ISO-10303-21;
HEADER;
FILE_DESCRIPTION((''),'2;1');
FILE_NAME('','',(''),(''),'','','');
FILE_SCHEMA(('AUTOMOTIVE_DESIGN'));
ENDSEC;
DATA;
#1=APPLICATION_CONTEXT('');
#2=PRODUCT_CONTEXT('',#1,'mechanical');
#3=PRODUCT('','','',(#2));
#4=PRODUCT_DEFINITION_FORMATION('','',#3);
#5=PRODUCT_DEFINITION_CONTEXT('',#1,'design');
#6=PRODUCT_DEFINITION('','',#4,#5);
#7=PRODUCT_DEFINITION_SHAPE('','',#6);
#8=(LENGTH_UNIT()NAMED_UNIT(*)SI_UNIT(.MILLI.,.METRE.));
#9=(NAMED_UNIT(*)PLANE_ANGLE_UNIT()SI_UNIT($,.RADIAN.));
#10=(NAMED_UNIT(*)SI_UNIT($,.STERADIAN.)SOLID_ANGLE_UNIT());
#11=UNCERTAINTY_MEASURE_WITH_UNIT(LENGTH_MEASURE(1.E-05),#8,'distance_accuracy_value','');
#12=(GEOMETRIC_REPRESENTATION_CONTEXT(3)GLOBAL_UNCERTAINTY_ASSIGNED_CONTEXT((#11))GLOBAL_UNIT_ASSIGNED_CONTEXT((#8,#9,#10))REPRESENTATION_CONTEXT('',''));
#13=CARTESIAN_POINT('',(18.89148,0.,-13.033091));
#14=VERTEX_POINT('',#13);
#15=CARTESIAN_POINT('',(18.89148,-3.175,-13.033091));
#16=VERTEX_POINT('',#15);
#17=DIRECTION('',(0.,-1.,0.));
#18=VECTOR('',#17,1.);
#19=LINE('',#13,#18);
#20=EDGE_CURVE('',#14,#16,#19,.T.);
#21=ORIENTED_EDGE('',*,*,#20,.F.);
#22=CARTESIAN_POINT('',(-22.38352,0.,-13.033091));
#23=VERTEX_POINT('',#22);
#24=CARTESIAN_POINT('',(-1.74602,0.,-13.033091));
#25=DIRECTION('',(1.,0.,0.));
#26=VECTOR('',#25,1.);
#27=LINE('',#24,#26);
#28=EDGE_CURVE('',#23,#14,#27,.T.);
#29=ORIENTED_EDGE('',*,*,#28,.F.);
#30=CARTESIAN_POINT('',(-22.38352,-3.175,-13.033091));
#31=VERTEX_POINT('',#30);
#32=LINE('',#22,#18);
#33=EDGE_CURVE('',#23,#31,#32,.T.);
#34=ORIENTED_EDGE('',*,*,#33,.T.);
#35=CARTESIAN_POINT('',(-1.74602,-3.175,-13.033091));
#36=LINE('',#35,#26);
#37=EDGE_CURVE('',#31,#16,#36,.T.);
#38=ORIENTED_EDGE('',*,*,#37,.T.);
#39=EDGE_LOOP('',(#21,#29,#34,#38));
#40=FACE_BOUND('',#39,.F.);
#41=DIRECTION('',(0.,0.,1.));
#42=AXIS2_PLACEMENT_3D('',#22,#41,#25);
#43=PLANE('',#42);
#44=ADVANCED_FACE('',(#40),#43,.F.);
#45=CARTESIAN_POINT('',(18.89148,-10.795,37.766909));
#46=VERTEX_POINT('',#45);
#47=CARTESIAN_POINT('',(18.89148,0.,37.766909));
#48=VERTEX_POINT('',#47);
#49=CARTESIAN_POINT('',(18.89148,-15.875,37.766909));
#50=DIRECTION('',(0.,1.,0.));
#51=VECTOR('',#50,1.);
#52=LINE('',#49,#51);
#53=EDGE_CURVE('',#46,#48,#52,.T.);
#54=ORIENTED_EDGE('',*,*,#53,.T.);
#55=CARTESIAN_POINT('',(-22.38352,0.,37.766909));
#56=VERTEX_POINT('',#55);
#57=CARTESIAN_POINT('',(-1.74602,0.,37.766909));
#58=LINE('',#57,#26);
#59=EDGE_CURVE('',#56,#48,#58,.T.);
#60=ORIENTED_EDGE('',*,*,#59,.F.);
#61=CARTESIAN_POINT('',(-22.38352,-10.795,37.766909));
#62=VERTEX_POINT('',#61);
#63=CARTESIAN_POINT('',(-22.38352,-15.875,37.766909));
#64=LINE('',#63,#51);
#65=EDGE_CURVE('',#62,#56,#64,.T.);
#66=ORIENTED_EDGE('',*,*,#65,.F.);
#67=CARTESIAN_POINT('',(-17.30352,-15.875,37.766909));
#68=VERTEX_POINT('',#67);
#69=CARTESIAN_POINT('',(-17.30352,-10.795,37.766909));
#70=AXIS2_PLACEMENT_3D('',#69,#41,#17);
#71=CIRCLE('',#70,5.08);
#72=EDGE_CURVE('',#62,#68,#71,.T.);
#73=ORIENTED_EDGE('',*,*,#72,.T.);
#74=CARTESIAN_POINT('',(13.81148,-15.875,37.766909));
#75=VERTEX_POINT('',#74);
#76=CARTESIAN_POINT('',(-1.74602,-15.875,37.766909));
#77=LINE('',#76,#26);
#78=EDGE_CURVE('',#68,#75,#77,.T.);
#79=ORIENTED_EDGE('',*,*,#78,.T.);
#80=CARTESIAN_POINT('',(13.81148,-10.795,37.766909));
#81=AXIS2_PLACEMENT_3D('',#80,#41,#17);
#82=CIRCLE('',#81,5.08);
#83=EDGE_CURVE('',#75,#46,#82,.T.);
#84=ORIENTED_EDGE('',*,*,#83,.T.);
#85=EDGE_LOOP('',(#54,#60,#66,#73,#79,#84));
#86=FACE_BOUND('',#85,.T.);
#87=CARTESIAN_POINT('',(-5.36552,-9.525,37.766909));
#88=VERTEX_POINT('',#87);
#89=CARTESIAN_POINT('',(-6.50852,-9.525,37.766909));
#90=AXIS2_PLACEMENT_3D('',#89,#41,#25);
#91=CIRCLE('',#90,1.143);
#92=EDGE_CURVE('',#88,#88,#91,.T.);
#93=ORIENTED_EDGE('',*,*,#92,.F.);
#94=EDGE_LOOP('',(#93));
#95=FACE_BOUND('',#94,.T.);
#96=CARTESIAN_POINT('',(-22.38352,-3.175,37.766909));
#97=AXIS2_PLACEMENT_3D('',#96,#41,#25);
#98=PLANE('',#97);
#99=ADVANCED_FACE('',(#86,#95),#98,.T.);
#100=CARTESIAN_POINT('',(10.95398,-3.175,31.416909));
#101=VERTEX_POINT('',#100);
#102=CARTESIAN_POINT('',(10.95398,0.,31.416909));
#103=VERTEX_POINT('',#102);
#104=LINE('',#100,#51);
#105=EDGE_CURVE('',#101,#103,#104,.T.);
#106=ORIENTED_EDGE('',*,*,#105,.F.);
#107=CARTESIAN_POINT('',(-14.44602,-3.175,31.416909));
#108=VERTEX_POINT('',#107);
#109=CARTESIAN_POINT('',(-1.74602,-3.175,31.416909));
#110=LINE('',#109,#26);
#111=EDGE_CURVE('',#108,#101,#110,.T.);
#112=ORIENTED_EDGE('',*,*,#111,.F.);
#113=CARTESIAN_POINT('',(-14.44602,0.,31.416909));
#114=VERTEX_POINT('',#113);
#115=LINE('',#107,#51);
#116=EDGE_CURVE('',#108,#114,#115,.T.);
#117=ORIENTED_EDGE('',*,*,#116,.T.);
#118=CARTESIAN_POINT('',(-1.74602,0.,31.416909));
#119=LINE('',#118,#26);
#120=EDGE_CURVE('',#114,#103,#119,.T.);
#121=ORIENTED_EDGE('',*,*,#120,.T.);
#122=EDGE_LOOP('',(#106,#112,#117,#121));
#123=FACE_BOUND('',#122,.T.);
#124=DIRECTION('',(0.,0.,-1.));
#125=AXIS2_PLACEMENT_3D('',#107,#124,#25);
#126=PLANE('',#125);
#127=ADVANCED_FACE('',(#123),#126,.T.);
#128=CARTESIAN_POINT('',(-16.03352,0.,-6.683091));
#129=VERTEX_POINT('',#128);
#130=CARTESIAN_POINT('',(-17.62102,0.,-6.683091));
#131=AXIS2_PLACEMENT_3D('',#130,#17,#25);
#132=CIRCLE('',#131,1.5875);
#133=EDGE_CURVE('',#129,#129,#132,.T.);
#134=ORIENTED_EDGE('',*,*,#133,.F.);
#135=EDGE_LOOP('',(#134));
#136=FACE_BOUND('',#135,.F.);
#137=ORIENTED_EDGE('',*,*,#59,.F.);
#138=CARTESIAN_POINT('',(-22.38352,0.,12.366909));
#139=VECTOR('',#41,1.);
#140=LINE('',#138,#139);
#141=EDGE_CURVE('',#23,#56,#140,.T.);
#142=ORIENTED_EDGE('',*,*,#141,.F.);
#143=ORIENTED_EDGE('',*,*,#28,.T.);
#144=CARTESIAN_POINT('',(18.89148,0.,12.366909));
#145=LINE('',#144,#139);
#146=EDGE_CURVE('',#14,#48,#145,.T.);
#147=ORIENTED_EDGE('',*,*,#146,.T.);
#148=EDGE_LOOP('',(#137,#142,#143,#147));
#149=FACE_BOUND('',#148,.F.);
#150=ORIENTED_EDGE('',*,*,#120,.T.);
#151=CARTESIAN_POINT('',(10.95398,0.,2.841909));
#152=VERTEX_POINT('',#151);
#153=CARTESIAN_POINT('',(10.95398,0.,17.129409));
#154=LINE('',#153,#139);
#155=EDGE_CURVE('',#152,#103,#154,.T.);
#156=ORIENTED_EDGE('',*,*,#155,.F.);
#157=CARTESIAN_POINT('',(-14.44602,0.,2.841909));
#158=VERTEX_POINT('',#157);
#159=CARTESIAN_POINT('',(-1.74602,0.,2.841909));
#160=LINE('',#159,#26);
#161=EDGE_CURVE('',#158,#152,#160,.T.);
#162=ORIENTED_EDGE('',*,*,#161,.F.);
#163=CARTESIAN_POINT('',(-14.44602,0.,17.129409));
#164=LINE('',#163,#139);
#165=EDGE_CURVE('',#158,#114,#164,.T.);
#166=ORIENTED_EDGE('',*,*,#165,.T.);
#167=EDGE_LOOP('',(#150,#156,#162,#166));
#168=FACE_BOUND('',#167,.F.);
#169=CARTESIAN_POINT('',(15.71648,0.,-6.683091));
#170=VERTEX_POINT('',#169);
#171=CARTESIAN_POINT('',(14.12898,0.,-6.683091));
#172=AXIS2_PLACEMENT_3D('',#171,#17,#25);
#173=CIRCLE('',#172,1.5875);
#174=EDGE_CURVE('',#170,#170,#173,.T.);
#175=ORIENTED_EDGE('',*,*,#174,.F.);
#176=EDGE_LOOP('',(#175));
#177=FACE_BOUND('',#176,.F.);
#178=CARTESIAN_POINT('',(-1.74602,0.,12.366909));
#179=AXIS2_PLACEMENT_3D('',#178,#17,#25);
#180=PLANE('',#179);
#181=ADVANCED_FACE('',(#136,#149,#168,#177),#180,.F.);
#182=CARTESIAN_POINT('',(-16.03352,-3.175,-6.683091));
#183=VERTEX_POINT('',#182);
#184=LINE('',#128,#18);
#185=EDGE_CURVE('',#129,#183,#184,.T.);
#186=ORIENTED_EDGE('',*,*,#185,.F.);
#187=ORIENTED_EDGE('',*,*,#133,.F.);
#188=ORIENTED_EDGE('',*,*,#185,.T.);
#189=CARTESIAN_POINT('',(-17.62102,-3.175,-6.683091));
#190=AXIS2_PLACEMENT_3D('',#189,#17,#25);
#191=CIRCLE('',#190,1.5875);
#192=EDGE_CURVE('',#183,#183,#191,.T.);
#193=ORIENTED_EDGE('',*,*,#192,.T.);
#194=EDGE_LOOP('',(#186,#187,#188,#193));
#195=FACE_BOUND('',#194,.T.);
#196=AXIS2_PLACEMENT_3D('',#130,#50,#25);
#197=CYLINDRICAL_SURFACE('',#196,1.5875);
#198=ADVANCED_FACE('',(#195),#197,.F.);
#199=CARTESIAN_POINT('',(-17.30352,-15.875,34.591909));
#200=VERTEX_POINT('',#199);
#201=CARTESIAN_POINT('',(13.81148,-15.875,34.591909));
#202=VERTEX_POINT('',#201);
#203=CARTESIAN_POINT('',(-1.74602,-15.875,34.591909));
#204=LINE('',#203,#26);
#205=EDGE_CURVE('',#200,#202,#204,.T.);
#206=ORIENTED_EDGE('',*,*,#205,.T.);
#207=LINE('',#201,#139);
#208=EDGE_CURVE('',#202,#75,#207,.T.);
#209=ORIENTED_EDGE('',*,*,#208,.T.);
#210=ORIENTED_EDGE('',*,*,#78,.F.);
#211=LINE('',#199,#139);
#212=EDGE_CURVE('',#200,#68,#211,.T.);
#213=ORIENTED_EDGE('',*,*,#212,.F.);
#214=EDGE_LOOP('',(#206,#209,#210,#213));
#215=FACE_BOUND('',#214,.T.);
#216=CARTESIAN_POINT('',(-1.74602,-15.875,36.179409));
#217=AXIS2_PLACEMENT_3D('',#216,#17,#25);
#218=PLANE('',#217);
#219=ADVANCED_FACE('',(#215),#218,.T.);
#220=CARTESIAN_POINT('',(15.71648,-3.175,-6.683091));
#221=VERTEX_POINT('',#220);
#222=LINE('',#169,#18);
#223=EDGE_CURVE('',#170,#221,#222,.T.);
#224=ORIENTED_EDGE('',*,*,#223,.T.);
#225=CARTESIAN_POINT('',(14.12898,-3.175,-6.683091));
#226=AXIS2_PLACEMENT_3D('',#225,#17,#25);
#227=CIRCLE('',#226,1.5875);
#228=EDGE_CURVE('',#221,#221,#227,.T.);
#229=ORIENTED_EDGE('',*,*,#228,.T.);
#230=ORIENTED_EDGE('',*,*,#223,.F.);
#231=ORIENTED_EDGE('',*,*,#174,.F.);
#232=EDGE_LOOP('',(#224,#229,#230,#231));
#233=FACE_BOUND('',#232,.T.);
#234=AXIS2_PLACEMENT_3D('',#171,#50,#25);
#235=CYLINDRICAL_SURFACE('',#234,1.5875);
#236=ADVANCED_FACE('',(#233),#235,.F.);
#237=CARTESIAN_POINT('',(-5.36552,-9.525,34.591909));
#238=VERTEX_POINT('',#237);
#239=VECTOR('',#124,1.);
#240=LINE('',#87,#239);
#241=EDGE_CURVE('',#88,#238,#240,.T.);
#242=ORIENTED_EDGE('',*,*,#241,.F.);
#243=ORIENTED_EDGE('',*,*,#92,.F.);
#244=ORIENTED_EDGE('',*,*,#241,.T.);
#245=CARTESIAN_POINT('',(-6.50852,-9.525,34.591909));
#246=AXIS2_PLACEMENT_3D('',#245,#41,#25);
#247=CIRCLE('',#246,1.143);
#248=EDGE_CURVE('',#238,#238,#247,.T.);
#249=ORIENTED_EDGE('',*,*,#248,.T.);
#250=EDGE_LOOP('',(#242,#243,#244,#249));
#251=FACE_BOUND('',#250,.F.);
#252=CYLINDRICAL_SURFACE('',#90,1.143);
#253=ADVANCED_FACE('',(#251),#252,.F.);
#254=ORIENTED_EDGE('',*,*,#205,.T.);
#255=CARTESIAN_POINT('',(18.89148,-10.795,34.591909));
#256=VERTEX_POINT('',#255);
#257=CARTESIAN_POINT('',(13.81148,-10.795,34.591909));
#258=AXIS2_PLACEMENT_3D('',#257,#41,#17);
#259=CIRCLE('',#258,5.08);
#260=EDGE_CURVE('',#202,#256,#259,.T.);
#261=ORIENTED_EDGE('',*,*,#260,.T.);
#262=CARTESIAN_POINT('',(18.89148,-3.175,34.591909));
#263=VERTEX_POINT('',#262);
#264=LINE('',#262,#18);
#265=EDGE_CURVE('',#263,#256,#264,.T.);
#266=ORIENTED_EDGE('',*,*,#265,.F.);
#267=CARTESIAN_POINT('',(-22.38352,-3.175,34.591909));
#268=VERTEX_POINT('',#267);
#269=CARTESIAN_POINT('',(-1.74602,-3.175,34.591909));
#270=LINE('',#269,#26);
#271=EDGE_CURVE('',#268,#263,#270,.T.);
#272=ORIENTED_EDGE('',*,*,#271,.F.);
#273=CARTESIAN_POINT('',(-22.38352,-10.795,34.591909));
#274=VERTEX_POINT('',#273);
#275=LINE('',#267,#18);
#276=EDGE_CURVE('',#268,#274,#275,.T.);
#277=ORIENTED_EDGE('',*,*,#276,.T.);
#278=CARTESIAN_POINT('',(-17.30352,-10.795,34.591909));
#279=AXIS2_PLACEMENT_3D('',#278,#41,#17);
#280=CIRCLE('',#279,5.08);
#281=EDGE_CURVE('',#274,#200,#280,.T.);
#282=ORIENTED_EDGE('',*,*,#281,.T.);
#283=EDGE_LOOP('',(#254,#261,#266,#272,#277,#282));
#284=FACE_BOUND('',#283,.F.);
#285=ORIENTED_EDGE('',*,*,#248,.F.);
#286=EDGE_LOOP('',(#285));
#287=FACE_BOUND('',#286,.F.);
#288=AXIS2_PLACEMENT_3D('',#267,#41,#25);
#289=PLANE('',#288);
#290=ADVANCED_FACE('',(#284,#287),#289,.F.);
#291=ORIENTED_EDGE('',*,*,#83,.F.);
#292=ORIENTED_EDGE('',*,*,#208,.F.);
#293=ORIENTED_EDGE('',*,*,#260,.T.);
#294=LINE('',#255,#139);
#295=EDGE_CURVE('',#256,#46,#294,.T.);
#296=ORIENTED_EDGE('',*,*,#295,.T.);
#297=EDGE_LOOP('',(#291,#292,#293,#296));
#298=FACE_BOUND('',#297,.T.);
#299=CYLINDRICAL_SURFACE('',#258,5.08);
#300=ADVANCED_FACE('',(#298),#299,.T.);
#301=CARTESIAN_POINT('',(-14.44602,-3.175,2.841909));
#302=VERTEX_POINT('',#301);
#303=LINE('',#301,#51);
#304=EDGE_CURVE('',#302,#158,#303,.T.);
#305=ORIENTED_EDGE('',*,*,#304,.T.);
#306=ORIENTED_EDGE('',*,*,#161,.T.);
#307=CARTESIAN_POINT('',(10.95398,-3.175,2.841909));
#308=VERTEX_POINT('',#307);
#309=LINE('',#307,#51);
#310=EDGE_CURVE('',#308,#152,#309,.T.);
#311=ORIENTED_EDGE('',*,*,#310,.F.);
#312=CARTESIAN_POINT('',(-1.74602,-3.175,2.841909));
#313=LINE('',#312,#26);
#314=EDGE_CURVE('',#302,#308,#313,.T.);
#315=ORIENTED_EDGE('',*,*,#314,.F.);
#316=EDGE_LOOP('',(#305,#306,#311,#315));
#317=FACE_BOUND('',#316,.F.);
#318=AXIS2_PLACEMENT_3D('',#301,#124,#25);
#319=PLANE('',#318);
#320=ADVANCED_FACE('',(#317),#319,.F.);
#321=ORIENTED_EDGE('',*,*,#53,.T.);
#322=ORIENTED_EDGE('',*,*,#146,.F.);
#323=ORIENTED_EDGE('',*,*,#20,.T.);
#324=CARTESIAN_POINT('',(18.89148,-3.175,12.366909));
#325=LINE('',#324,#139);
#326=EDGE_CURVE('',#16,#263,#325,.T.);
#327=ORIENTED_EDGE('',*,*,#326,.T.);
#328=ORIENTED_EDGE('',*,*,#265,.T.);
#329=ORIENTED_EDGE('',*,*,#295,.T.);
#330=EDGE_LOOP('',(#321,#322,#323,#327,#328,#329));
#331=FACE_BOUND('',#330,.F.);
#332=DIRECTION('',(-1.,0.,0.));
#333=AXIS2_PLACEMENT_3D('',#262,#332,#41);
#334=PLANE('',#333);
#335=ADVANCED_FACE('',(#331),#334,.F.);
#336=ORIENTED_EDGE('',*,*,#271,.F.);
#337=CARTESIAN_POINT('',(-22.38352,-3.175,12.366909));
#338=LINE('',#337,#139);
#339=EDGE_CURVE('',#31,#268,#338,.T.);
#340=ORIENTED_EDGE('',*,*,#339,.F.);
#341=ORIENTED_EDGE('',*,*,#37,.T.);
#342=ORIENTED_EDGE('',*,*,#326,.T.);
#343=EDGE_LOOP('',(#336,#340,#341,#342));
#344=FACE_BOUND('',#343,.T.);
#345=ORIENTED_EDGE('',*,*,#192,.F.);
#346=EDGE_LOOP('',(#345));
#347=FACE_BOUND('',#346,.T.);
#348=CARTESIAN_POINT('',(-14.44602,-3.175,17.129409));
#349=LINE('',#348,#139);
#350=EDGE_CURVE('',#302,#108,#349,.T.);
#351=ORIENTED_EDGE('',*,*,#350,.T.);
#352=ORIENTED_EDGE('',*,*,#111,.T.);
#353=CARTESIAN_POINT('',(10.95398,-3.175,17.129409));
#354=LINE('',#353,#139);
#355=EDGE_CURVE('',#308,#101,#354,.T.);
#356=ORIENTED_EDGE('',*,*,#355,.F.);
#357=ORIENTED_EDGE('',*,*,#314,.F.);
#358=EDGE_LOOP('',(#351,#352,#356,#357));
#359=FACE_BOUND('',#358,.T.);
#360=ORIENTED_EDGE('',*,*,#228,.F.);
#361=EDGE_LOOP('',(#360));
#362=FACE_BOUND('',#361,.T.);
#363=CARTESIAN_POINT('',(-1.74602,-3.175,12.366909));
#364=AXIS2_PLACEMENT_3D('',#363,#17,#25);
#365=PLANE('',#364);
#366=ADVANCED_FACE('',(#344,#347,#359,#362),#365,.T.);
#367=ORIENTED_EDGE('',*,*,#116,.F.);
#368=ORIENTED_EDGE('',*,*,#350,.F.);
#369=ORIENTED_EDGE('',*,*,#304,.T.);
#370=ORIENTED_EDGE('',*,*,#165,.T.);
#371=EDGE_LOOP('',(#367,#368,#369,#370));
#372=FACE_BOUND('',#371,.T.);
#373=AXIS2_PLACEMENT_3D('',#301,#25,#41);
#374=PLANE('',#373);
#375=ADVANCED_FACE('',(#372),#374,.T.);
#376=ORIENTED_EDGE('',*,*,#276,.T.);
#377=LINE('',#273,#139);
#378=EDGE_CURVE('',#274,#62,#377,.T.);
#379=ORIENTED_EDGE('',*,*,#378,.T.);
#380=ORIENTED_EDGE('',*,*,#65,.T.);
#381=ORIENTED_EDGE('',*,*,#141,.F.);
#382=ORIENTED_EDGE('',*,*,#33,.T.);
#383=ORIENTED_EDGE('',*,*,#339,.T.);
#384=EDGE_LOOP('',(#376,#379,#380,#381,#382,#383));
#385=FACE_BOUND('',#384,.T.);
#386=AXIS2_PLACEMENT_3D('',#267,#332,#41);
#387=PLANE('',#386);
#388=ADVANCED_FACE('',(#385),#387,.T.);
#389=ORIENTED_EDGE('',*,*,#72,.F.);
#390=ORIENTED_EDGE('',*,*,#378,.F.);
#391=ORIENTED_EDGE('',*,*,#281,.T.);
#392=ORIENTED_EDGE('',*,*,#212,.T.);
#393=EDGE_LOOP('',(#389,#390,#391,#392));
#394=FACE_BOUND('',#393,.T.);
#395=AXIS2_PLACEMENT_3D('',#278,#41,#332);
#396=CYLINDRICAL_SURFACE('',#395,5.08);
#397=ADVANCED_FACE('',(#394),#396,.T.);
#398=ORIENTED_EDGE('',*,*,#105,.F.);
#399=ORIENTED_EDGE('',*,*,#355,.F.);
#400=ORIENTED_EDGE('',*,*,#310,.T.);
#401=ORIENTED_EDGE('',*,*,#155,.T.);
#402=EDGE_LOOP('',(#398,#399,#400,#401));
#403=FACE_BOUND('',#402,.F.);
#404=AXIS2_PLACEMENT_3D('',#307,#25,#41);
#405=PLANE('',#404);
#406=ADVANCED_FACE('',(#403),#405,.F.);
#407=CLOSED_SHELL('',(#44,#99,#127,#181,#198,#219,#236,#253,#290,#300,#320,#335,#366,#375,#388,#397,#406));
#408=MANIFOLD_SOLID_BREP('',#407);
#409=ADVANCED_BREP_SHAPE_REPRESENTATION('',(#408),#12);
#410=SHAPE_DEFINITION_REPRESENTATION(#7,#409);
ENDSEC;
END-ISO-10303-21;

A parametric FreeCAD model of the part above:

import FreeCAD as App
import Part
import Sketcher
Q = App.Units.Quantity


def edges_at(feature, points):
    """Names of the edges that pass closest to the given points."""
    edges = feature.Shape.Edges
    near = lambda p: min(range(len(edges)), key=lambda i: edges[i].distToShape(Part.Vertex(*p))[0])
    return sorted({f"Edge{near(p) + 1}" for p in points})


def add_polygon(sketch, points):
    """Adds a closed chain of lines whose ends are joined by coincident constraints."""
    first, n = sketch.GeometryCount, len(points)
    for a, b in zip(points, points[1:] + points[:1]):
        sketch.addGeometry(Part.LineSegment(App.Vector(*a, 0), App.Vector(*b, 0)), False)
    for i in range(n):
        sketch.addConstraint(Sketcher.Constraint("Coincident", first + i, 2, first + (i + 1) % n, 1))

doc = App.newDocument("Part")
body = doc.addObject("PartDesign::Body", "Body")

# Sketch on XZ plane
sketch1 = body.newObject("Sketcher::SketchObject", "Sketch")
sketch1.AttachmentSupport = (doc.getObject("XZ_Plane"), [""])
sketch1.MapMode = "FlatFace"
add_polygon(sketch1, [(-22.38352, 37.766909), (-22.38352, -13.033091), (18.89148, -13.033091), (18.89148, 37.766909)])  # lines 0-3
sketch1.addGeometry(Part.Circle(App.Vector(-17.62102, -6.683091, 0), App.Vector(0, 0, 1), 1.5875), False)  # 4
sketch1.addGeometry(Part.Circle(App.Vector(14.12898, -6.683091, 0), App.Vector(0, 0, 1), 1.5875), False)  # 5
sketch1.addConstraint([
    Sketcher.Constraint("Vertical", 0),
    Sketcher.Constraint("Horizontal", 1),
    Sketcher.Constraint("Vertical", 2),
    Sketcher.Constraint("Horizontal", 3),
    Sketcher.Constraint("Equal", 4, 5),
    Sketcher.Constraint("Horizontal", 4, 3, 5, 3),
    Sketcher.Constraint("DistanceY", 0, 2, 0, 1, Q("2 in")),
    Sketcher.Constraint("Diameter", 4, Q("0.125 in")),
    Sketcher.Constraint("DistanceX", 1, 1, 1, 2, Q("1.625 in")),
    Sketcher.Constraint("DistanceX", 4, 3, 5, 3, Q("1.25 in")),
    Sketcher.Constraint("DistanceY", 0, 2, 4, 3, Q("0.25 in")),
    Sketcher.Constraint("DistanceX", 0, 2, 4, 3, Q("0.1875 in")),
    Sketcher.Constraint("DistanceX", 4, 3, -1, 1, Q("17.62102 mm")),
    Sketcher.Constraint("DistanceY", 4, 3, -1, 1, Q("6.683091 mm")),
])
pad1 = body.newObject("PartDesign::Pad", "Pad")
pad1.Profile = sketch1
pad1.Length = Q("0.125 in")

# Sketch on XZ plane
sketch2 = body.newObject("Sketcher::SketchObject", "Sketch001")
sketch2.AttachmentSupport = (doc.getObject("XZ_Plane"), [""])
sketch2.MapMode = "FlatFace"
sketch2.AttachmentOffset = App.Placement(App.Vector(0, 0, 0.125 * 25.4), App.Rotation())
add_polygon(sketch2, [(-22.38352, 37.766909), (-22.38352, 34.591909), (18.89148, 34.591909), (18.89148, 37.766909)])  # lines 0-3
sketch2.addConstraint([
    Sketcher.Constraint("Vertical", 0),
    Sketcher.Constraint("Horizontal", 1),
    Sketcher.Constraint("Vertical", 2),
    Sketcher.Constraint("Horizontal", 3),
    Sketcher.Constraint("DistanceX", 1, 1, 1, 2, Q("1.625 in")),
    Sketcher.Constraint("DistanceY", 0, 2, 0, 1, Q("0.125 in")),
    Sketcher.Constraint("DistanceX", 0, 2, -1, 1, Q("22.38352 mm")),
    Sketcher.Constraint("DistanceY", -1, 1, 0, 2, Q("34.591909 mm")),
])
pad2 = body.newObject("PartDesign::Pad", "Pad001")
pad2.Profile = sketch2
pad2.Length = Q("0.5 in")

# Sketch on XZ plane
sketch3 = body.newObject("Sketcher::SketchObject", "Sketch002")
sketch3.AttachmentSupport = (doc.getObject("XZ_Plane"), [""])
sketch3.MapMode = "FlatFace"
sketch3.AttachmentOffset = App.Placement(App.Vector(0, 0, 0.125 * 25.4), App.Rotation())
add_polygon(sketch3, [(-14.44602, 31.416909), (-14.44602, 2.841909), (10.95398, 2.841909), (10.95398, 31.416909)])  # lines 0-3
sketch3.addConstraint([
    Sketcher.Constraint("Vertical", 0),
    Sketcher.Constraint("Horizontal", 1),
    Sketcher.Constraint("Vertical", 2),
    Sketcher.Constraint("Horizontal", 3),
    Sketcher.Constraint("DistanceX", 1, 1, 1, 2, Q("1 in")),
    Sketcher.Constraint("DistanceY", 0, 2, 0, 1, Q("1.125 in")),
    Sketcher.Constraint("DistanceX", 0, 2, -1, 1, Q("14.44602 mm")),
    Sketcher.Constraint("DistanceY", -1, 1, 0, 2, Q("2.841909 mm")),
])
pocket1 = body.newObject("PartDesign::Pocket", "Pocket")
pocket1.Profile = sketch3
pocket1.Length = Q("0.125 in")

# Sketch on XY plane
sketch4 = body.newObject("Sketcher::SketchObject", "Sketch003")
sketch4.AttachmentSupport = (doc.getObject("XY_Plane"), [""])
sketch4.MapMode = "FlatFace"
sketch4.AttachmentOffset = App.Placement(App.Vector(0, 0, 37.766909), App.Rotation())
sketch4.addGeometry(Part.Circle(App.Vector(-6.50852, -9.525, 0), App.Vector(0, 0, 1), 1.143), False)
sketch4.addConstraint([
    Sketcher.Constraint("Diameter", 0, Q("0.09 in")),
    Sketcher.Constraint("DistanceY", 0, 3, -1, 1, Q("0.375 in")),
    Sketcher.Constraint("DistanceX", 0, 3, -1, 1, Q("6.50852 mm")),
])
pocket2 = body.newObject("PartDesign::Pocket", "Pocket001")
pocket2.Profile = sketch4
pocket2.Length = Q("1 in")
doc.recompute()

fillet = body.newObject("PartDesign::Fillet", "Fillet")
fillet.Base = (pocket2, edges_at(pocket2, [(-22.384, -15.875, 36.179)]))
fillet.Radius = Q("0.2 in")
doc.recompute()

fillet2 = body.newObject("PartDesign::Fillet", "Fillet001")
fillet2.Base = (fillet, edges_at(fillet, [(18.891, -15.875, 36.179)]))
fillet2.Radius = Q("0.2 in")

doc.recompute()
